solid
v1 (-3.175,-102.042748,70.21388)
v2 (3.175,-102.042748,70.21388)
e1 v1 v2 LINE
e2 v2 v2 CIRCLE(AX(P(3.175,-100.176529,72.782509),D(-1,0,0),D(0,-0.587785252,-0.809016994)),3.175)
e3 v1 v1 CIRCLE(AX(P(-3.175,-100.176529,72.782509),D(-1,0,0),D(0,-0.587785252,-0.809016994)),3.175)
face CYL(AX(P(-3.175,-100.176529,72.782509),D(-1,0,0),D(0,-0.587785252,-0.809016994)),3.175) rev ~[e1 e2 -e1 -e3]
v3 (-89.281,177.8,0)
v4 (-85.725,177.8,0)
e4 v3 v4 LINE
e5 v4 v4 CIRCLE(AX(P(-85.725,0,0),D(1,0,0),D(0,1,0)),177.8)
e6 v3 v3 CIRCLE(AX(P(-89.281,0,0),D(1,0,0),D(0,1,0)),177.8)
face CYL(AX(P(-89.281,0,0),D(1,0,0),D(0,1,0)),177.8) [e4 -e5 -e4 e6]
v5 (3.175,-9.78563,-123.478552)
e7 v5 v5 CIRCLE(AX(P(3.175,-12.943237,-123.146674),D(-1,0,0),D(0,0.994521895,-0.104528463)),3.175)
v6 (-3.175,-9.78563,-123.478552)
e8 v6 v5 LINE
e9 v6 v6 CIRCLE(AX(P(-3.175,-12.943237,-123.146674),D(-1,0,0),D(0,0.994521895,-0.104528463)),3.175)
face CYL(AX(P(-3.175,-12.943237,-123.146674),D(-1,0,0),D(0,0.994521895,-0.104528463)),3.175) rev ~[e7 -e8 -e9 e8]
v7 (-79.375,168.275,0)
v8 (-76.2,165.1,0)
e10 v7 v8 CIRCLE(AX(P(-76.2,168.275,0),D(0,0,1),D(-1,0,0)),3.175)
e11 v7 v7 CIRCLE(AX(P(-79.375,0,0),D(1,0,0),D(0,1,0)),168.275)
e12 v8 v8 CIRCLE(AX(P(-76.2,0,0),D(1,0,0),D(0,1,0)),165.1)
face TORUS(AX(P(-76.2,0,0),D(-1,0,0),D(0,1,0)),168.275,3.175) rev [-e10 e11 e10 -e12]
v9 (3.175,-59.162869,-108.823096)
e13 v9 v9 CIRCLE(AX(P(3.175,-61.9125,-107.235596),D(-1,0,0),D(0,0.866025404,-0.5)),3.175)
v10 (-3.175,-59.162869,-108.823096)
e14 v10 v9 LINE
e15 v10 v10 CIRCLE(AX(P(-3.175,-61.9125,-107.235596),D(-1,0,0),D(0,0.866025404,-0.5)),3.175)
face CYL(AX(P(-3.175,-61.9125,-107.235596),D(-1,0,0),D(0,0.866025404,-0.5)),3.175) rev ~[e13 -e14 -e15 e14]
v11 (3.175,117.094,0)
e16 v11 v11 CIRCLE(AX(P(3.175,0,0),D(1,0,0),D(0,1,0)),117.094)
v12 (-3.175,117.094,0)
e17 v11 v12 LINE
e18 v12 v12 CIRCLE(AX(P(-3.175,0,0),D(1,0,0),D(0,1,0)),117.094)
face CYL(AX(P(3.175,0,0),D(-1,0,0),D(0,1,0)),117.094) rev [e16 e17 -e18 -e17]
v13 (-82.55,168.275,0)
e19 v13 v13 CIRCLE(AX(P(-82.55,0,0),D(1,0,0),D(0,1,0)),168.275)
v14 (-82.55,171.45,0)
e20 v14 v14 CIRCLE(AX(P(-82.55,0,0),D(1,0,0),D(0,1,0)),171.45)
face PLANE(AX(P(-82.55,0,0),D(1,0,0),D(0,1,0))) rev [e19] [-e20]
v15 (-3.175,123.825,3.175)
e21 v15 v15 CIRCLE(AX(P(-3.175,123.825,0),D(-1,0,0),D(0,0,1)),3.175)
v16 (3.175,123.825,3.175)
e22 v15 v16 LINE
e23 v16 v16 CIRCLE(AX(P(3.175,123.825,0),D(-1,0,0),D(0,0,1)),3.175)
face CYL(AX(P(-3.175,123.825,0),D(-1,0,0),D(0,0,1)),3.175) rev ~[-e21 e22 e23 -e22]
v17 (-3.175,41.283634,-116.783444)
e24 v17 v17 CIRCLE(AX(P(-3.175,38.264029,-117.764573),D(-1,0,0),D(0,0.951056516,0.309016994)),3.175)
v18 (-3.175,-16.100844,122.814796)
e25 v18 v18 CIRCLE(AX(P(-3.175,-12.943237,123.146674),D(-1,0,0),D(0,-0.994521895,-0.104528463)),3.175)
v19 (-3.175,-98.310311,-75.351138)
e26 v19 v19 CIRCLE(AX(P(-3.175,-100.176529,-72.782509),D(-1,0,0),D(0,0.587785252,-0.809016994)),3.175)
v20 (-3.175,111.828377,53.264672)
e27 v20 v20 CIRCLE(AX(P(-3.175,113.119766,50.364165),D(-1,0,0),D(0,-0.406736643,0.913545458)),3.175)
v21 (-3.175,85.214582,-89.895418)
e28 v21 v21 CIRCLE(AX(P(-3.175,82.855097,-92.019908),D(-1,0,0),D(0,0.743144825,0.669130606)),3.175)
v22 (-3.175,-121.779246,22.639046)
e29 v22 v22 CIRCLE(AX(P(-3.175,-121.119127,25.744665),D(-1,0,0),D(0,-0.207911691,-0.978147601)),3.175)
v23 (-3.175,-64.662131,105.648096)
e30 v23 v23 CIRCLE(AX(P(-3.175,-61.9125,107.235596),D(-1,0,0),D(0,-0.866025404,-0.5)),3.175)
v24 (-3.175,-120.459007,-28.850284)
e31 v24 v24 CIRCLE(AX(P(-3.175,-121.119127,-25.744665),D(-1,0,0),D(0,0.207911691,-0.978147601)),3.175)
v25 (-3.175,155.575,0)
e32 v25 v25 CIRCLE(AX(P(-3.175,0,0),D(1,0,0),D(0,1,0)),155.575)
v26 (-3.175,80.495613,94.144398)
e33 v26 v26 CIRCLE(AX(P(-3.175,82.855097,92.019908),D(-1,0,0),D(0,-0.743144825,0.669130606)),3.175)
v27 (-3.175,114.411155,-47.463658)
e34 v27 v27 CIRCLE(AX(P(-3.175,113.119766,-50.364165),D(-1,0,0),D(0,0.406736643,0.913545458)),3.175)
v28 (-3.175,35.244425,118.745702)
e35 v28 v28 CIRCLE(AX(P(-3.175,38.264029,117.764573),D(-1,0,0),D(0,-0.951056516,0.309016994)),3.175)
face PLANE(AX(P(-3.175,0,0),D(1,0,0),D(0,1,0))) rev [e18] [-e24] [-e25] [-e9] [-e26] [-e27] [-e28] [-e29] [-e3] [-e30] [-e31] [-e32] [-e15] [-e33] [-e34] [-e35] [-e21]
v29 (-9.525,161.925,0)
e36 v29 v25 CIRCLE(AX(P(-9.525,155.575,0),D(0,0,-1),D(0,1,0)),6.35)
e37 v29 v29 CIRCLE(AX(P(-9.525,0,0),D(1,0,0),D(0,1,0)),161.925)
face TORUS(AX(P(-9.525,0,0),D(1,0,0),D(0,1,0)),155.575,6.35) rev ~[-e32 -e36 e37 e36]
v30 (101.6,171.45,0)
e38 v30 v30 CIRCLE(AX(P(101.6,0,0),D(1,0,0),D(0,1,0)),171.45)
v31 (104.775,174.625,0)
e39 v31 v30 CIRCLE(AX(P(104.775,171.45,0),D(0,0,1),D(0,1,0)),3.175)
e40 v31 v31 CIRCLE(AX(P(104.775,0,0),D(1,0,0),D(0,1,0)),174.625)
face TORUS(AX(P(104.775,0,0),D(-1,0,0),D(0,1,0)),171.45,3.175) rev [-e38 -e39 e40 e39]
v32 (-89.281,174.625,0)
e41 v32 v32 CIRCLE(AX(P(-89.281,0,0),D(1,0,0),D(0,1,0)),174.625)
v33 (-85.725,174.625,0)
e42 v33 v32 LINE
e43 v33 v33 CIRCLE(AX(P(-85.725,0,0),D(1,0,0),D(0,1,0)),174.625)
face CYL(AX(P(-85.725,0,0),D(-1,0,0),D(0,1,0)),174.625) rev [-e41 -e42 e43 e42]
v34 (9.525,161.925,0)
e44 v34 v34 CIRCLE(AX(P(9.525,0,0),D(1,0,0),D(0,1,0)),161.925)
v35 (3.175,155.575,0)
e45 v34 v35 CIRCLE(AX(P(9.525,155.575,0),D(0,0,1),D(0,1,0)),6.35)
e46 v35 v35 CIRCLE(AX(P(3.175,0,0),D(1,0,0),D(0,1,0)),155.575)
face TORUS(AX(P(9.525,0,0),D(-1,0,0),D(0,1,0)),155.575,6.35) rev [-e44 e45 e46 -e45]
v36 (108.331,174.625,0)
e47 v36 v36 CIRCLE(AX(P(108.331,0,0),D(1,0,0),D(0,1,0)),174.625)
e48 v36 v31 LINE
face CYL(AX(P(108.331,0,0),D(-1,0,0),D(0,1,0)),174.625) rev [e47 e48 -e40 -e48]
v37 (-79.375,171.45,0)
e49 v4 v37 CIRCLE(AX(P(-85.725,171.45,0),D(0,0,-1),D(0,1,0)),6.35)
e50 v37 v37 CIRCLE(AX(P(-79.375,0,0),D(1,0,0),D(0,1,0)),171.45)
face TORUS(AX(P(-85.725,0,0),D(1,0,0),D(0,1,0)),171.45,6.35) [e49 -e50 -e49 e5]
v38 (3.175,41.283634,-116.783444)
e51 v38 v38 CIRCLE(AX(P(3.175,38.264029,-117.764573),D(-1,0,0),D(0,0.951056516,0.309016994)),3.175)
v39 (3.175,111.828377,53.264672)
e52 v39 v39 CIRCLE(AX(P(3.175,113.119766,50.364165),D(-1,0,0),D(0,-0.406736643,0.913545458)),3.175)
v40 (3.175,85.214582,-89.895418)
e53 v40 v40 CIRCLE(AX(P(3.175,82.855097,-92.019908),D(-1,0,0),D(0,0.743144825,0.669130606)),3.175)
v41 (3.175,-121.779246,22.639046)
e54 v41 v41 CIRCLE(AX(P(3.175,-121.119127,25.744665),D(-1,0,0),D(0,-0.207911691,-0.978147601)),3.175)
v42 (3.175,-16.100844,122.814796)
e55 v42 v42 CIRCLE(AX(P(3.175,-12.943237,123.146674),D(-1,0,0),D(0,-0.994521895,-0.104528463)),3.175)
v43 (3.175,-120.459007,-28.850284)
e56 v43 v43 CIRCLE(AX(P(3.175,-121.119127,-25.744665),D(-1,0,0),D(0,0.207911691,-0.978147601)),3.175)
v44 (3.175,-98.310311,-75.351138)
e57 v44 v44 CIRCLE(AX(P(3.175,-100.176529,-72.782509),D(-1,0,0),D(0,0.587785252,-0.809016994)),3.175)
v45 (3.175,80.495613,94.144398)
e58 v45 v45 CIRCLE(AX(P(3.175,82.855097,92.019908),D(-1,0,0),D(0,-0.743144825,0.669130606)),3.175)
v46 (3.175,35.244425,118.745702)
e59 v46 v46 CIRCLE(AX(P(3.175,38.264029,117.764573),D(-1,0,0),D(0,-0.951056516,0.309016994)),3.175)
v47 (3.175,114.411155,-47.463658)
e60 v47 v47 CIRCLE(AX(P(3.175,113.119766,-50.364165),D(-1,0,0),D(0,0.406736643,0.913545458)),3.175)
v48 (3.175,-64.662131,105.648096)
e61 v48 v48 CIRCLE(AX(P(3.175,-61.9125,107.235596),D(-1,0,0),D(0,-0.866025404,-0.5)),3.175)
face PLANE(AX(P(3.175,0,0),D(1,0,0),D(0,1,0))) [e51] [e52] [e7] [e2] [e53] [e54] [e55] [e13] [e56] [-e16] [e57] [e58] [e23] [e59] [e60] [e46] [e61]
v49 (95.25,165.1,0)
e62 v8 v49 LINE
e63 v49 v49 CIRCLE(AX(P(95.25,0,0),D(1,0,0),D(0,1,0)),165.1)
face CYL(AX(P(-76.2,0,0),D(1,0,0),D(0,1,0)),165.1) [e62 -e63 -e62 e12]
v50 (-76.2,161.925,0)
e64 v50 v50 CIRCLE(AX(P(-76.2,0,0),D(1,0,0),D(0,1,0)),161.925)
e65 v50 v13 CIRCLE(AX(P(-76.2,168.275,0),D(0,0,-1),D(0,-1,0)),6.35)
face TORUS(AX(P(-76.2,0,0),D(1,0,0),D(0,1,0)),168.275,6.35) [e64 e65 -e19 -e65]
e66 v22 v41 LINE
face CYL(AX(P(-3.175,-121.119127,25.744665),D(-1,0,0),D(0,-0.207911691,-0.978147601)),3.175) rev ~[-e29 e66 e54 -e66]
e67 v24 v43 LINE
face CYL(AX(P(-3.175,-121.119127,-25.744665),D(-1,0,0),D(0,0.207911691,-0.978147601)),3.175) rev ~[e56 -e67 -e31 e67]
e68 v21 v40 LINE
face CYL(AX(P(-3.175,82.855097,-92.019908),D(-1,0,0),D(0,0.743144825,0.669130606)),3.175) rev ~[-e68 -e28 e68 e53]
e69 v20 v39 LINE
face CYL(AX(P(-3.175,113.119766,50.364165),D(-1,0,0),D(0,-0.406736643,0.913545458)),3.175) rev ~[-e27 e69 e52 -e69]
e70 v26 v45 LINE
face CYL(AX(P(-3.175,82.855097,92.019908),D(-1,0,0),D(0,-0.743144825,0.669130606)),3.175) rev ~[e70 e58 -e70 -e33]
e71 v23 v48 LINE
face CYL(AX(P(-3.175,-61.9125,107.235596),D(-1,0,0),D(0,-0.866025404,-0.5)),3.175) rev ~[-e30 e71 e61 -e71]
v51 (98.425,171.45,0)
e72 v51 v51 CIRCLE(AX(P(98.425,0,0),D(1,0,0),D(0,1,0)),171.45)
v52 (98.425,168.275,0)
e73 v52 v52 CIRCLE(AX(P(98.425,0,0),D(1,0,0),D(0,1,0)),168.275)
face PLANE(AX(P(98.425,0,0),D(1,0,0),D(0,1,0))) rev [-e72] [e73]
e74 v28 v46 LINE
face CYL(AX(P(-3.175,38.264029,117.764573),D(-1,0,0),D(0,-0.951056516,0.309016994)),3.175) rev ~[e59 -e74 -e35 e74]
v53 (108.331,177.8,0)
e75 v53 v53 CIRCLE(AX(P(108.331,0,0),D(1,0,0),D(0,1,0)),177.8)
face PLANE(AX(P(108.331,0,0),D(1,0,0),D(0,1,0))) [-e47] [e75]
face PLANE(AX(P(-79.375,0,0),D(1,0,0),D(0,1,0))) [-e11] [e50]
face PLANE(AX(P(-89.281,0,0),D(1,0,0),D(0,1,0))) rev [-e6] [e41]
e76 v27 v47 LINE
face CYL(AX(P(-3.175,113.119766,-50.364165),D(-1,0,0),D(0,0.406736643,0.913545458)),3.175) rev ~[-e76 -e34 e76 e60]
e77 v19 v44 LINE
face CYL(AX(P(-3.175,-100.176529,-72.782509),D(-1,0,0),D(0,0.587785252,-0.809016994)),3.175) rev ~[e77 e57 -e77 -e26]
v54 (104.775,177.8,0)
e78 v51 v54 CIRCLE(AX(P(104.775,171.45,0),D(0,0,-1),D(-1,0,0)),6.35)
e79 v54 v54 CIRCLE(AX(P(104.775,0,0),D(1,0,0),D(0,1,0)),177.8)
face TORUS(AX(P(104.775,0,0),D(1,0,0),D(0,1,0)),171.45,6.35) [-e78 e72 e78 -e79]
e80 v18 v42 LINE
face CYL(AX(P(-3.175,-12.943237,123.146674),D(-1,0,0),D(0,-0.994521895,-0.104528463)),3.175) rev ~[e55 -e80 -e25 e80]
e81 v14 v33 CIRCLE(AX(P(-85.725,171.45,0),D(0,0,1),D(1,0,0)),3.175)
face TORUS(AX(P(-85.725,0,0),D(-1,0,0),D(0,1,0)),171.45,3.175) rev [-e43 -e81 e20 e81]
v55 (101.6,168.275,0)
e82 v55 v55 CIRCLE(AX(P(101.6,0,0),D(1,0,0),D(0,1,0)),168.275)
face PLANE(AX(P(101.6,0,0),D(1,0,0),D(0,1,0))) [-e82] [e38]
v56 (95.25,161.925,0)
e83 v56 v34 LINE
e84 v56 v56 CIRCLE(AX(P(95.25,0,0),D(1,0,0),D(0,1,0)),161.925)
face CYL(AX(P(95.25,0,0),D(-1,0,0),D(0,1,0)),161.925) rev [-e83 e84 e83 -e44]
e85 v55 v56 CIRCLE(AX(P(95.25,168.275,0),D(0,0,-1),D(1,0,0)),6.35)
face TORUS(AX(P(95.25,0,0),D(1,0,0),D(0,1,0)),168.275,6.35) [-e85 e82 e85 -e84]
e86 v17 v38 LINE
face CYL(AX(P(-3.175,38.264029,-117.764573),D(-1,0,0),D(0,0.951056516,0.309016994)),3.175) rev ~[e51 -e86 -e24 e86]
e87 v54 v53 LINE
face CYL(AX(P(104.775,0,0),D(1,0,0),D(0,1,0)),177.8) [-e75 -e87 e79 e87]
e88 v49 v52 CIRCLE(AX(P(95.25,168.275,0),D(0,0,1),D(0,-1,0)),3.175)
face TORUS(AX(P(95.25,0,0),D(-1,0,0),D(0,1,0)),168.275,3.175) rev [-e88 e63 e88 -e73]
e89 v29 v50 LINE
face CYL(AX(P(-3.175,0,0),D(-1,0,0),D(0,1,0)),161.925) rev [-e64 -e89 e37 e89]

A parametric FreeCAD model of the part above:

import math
import FreeCAD as App
import Part
import Sketcher
from FreeCAD import Vector
Q = App.Units.Quantity


def edges_at(feature, points):
    """Names of the edges that pass closest to the given points."""
    edges = feature.Shape.Edges
    near = lambda p: min(range(len(edges)), key=lambda i: edges[i].distToShape(Part.Vertex(*p))[0])
    return sorted({f"Edge{near(p) + 1}" for p in points})

doc = App.newDocument("Part")
body = doc.addObject("PartDesign::Body", "Body")

# Sketch on XY plane
sketch1 = body.newObject("Sketcher::SketchObject", "Sketch")
sketch1.AttachmentSupport = (doc.getObject("XY_Plane"), [""])
sketch1.MapMode = "FlatFace"
sketch1.addGeometry(Part.ArcOfCircle(Part.Circle(Vector(95.2, 168.3, 0), Vector(0, 0, 1), 3.2), math.radians(-90), math.radians(0)), False)
sketch1.addGeometry(Part.LineSegment(Vector(95.2, 165.1, 0), Vector(-76.2, 165.1, 0)), False)
sketch1.addGeometry(Part.ArcOfCircle(Part.Circle(Vector(-76.2, 168.3, 0), Vector(0, 0, 1), 3.2), math.radians(-180), math.radians(-90)), False)
sketch1.addGeometry(Part.LineSegment(Vector(-79.4, 168.3, 0), Vector(-79.4, 171.4, 0)), False)
sketch1.addGeometry(Part.ArcOfCircle(Part.Circle(Vector(-85.7, 171.5, 0), Vector(0, 0, 1), 6.3), math.radians(0), math.radians(90)), False)
sketch1.addGeometry(Part.LineSegment(Vector(-85.7, 177.8, 0), Vector(-89.3, 177.8, 0)), False)
sketch1.addGeometry(Part.LineSegment(Vector(-89.3, 177.8, 0), Vector(-89.3, 174.6, 0)), False)
sketch1.addGeometry(Part.LineSegment(Vector(-89.3, 174.6, 0), Vector(-85.7, 174.6, 0)), False)
sketch1.addGeometry(Part.ArcOfCircle(Part.Circle(Vector(-85.7, 171.4, 0), Vector(0, 0, 1), 3.2), math.radians(0), math.radians(90)), False)
sketch1.addGeometry(Part.LineSegment(Vector(-82.5, 171.4, 0), Vector(-82.5, 168.3, 0)), False)
sketch1.addGeometry(Part.ArcOfCircle(Part.Circle(Vector(-76.2, 168.3, 0), Vector(0, 0, 1), 6.3), math.radians(180), math.radians(270)), False)
sketch1.addGeometry(Part.LineSegment(Vector(-76.2, 161.9, 0), Vector(-3.2, 161.9, 0)), False)
sketch1.addGeometry(Part.LineSegment(Vector(-3.2, 161.9, 0), Vector(-3.2, 117.1, 0)), False)
sketch1.addGeometry(Part.LineSegment(Vector(-3.2, 117.1, 0), Vector(3.2, 117.1, 0)), False)
sketch1.addGeometry(Part.LineSegment(Vector(3.2, 117.1, 0), Vector(3.2, 161.9, 0)), False)
sketch1.addGeometry(Part.LineSegment(Vector(3.2, 161.9, 0), Vector(95.2, 161.9, 0)), False)
sketch1.addGeometry(Part.ArcOfCircle(Part.Circle(Vector(95.3, 168.3, 0), Vector(0, 0, 1), 6.3), math.radians(-90), math.radians(0)), False)
sketch1.addGeometry(Part.LineSegment(Vector(101.6, 168.3, 0), Vector(101.6, 171.4, 0)), False)
sketch1.addGeometry(Part.ArcOfCircle(Part.Circle(Vector(104.8, 171.4, 0), Vector(0, 0, 1), 3.2), math.radians(90), math.radians(180)), False)
sketch1.addGeometry(Part.LineSegment(Vector(104.8, 174.6, 0), Vector(108.3, 174.6, 0)), False)
sketch1.addGeometry(Part.LineSegment(Vector(108.3, 174.6, 0), Vector(108.3, 177.8, 0)), False)
sketch1.addGeometry(Part.LineSegment(Vector(108.3, 177.8, 0), Vector(104.8, 177.8, 0)), False)
sketch1.addGeometry(Part.ArcOfCircle(Part.Circle(Vector(104.8, 171.5, 0), Vector(0, 0, 1), 6.3), math.radians(90), math.radians(180)), False)
sketch1.addGeometry(Part.LineSegment(Vector(98.4, 171.4, 0), Vector(98.4, 168.3, 0)), False)
sketch1.addConstraint(Sketcher.Constraint("Tangent", 0, 1, 1, 1))
sketch1.addConstraint(Sketcher.Constraint("Tangent", 1, 2, 2, 2))
sketch1.addConstraint(Sketcher.Constraint("Tangent", 2, 1, 3, 1))
sketch1.addConstraint(Sketcher.Constraint("Tangent", 3, 2, 4, 1))
sketch1.addConstraint(Sketcher.Constraint("Tangent", 4, 2, 5, 1))
sketch1.addConstraint(Sketcher.Constraint("Coincident", 5, 2, 6, 1))
sketch1.addConstraint(Sketcher.Constraint("Coincident", 6, 2, 7, 1))
sketch1.addConstraint(Sketcher.Constraint("Tangent", 7, 2, 8, 2))
sketch1.addConstraint(Sketcher.Constraint("Tangent", 8, 1, 9, 1))
sketch1.addConstraint(Sketcher.Constraint("Tangent", 9, 2, 10, 1))
sketch1.addConstraint(Sketcher.Constraint("Tangent", 10, 2, 11, 1))
sketch1.addConstraint(Sketcher.Constraint("Coincident", 11, 2, 12, 1))
sketch1.addConstraint(Sketcher.Constraint("Coincident", 12, 2, 13, 1))
sketch1.addConstraint(Sketcher.Constraint("Coincident", 13, 2, 14, 1))
sketch1.addConstraint(Sketcher.Constraint("Coincident", 14, 2, 15, 1))
sketch1.addConstraint(Sketcher.Constraint("Tangent", 15, 2, 16, 1))
sketch1.addConstraint(Sketcher.Constraint("Tangent", 16, 2, 17, 1))
sketch1.addConstraint(Sketcher.Constraint("Tangent", 17, 2, 18, 2))
sketch1.addConstraint(Sketcher.Constraint("Tangent", 18, 1, 19, 1))
sketch1.addConstraint(Sketcher.Constraint("Coincident", 19, 2, 20, 1))
sketch1.addConstraint(Sketcher.Constraint("Coincident", 20, 2, 21, 1))
sketch1.addConstraint(Sketcher.Constraint("Tangent", 21, 2, 22, 1))
sketch1.addConstraint(Sketcher.Constraint("Tangent", 22, 2, 23, 1))
sketch1.addConstraint(Sketcher.Constraint("Tangent", 23, 2, 0, 2))
sketch1.addConstraint(Sketcher.Constraint("Horizontal", 1))
sketch1.addConstraint(Sketcher.Constraint("Vertical", 3))
sketch1.addConstraint(Sketcher.Constraint("Horizontal", 5))
sketch1.addConstraint(Sketcher.Constraint("Vertical", 6))
sketch1.addConstraint(Sketcher.Constraint("Horizontal", 7))
sketch1.addConstraint(Sketcher.Constraint("Vertical", 9))
sketch1.addConstraint(Sketcher.Constraint("Horizontal", 11))
sketch1.addConstraint(Sketcher.Constraint("Vertical", 12))
sketch1.addConstraint(Sketcher.Constraint("Horizontal", 13))
sketch1.addConstraint(Sketcher.Constraint("Vertical", 14))
sketch1.addConstraint(Sketcher.Constraint("Horizontal", 15))
sketch1.addConstraint(Sketcher.Constraint("Vertical", 17))
sketch1.addConstraint(Sketcher.Constraint("Horizontal", 19))
sketch1.addConstraint(Sketcher.Constraint("Vertical", 20))
sketch1.addConstraint(Sketcher.Constraint("Horizontal", 21))
sketch1.addConstraint(Sketcher.Constraint("Vertical", 23))
sketch1.addConstraint(Sketcher.Constraint("Coincident", 8, 3, 4, 3))
sketch1.addConstraint(Sketcher.Constraint("Coincident", 10, 3, 2, 3))
sketch1.addConstraint(Sketcher.Constraint("Coincident", 16, 3, 0, 3))
sketch1.addConstraint(Sketcher.Constraint("Coincident", 22, 3, 18, 3))
sketch1.addConstraint(Sketcher.Constraint("Equal", 0, 2))
sketch1.addConstraint(Sketcher.Constraint("Equal", 2, 8))
sketch1.addConstraint(Sketcher.Constraint("Equal", 10, 16))
sketch1.addConstraint(Sketcher.Constraint("Equal", 8, 18))
sketch1.addConstraint(Sketcher.Constraint("Horizontal", 8, 3, 18, 3))
sketch1.addConstraint(Sketcher.Constraint("Equal", 7, 19))
sketch1.addConstraint(Sketcher.Constraint("Equal", 3, 6))
sketch1.addConstraint(Sketcher.Constraint("Radius", 4, Q("0.25 in")))
sketch1.addConstraint(Sketcher.Constraint("DistanceX", 2, 3, -1, 1, Q("3 in")))
sketch1.addConstraint(Sketcher.Constraint("DistanceY", -1, 1, 4, 2, Q("7 in")))
sketch1.addConstraint(Sketcher.Constraint("DistanceX", -1, 1, 16, 2, Q("4 in")))
sketch1.addConstraint(Sketcher.Constraint("Radius", 0, Q("0.125 in")))
sketch1.addConstraint(Sketcher.Constraint("DistanceX", 2, 1, 11, 2, Q("3 in")))
sketch1.addConstraint(Sketcher.Constraint("DistanceX", 5, 2, 5, 1, Q("0.14 in")))
sketch1.addConstraint(Sketcher.Constraint("DistanceX", 13, 1, 13, 2, Q("0.25 in")))
sketch1.addConstraint(Sketcher.Constraint("DistanceY", 12, 2, 12, 1, Q("1.765 in")))
revolution = body.newObject("PartDesign::Revolution", "Revolution")
revolution.Profile = sketch1
revolution.ReferenceAxis = (sketch1, ["H_Axis"])
revolution.Angle = 360

# Sketch on YZ plane
sketch2 = body.newObject("Sketcher::SketchObject", "Sketch001")
sketch2.AttachmentSupport = (doc.getObject("YZ_Plane"), [""])
sketch2.MapMode = "FlatFace"
sketch2.AttachmentOffset = App.Placement(Vector(0, 0, -0.125 * 25.4), App.Rotation())
sketch2.addGeometry(Part.Circle(Vector(123.8, 0, 0), Vector(0, 0, 1), 3.2), False)
sketch2.addConstraint(Sketcher.Constraint("PointOnObject", 0, 3, -1))
sketch2.addConstraint(Sketcher.Constraint("Diameter", 0, Q("0.25 in")))
sketch2.addConstraint(Sketcher.Constraint("DistanceX", -1, 1, 0, 3, Q("4.875 in")))
pocket1 = body.newObject("PartDesign::Pocket", "Pocket")
pocket1.Profile = sketch2
pocket1.Type = "ThroughAll"
pocket1.Reversed = True
doc.recompute()

polarpattern = body.newObject("PartDesign::PolarPattern", "PolarPattern")
polarpattern.Originals = [pocket1]
polarpattern.Axis = (doc.getObject("X_Axis"), [""])
polarpattern.Angle = 360
polarpattern.Occurrences = 15
body.Tip = polarpattern
doc.recompute()

fillet = body.newObject("PartDesign::Fillet", "Fillet")
fillet.Base = (polarpattern, edges_at(polarpattern, [(-3.175, -161.925, 0), (3.175, -161.925, 0)]))
fillet.Radius = Q("0.25 in")

doc.recompute()
